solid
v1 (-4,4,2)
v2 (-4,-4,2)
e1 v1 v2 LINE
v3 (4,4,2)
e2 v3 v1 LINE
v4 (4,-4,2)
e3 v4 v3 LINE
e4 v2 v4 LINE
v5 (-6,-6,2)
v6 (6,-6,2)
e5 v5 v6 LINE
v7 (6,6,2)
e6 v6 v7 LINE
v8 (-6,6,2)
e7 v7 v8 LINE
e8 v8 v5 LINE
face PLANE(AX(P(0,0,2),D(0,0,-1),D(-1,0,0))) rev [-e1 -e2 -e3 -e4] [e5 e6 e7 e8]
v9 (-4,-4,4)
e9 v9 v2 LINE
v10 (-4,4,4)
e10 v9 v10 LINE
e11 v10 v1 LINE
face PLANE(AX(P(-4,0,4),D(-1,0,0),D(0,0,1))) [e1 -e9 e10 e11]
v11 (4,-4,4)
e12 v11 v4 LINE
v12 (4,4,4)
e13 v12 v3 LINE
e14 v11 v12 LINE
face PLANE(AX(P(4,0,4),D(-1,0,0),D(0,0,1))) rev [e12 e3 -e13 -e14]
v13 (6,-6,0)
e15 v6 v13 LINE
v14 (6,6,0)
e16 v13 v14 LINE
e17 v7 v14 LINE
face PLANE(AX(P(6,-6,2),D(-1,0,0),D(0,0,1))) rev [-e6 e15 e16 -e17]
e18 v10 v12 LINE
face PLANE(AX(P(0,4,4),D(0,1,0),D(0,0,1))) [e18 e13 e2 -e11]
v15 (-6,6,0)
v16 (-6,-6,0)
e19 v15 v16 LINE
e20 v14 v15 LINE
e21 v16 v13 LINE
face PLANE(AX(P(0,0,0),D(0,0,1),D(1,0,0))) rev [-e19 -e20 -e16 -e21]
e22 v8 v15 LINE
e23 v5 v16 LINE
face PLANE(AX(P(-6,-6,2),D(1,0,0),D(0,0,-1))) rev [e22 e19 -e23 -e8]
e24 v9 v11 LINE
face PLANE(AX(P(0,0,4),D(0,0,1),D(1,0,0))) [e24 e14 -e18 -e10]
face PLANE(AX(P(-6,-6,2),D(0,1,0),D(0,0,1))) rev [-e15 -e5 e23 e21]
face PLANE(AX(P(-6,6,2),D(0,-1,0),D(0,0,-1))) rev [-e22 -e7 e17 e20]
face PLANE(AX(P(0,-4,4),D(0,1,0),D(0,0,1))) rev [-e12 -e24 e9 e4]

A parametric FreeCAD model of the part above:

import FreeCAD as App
import Part
import Sketcher


def add_polygon(sketch, points):
    """Adds a closed chain of lines whose ends are joined by coincident constraints."""
    first, n = sketch.GeometryCount, len(points)
    for a, b in zip(points, points[1:] + points[:1]):
        sketch.addGeometry(Part.LineSegment(App.Vector(*a, 0), App.Vector(*b, 0)), False)
    for i in range(n):
        sketch.addConstraint(Sketcher.Constraint("Coincident", first + i, 2, first + (i + 1) % n, 1))

doc = App.newDocument("Part")
body = doc.addObject("PartDesign::Body", "Body")

sketch1 = body.newObject("Sketcher::SketchObject", "Sketch")
sketch1.AttachmentSupport = (doc.getObject("XY_Plane"), [""])
sketch1.MapMode = "FlatFace"
add_polygon(sketch1, [(-4, 4), (-4, -4), (4, -4), (4, 4)])
sketch1.addConstraint([
    Sketcher.Constraint("Vertical", 0),
    Sketcher.Constraint("Horizontal", 1),
    Sketcher.Constraint("Vertical", 2),
    Sketcher.Constraint("Horizontal", 3),
    Sketcher.Constraint("Symmetric", 0, 2, 2, 2, -1, 1),
    Sketcher.Constraint("Equal", 3, 0),
    Sketcher.Constraint("DistanceX", 1, 1, 1, 2, 8.0),
])
pad1 = body.newObject("PartDesign::Pad", "Pad")
pad1.Profile = sketch1
pad1.Length = 4

sketch2 = body.newObject("Sketcher::SketchObject", "Sketch001")
sketch2.AttachmentSupport = (doc.getObject("XY_Plane"), [""])
sketch2.MapMode = "FlatFace"
add_polygon(sketch2, [(-6, 6), (-6, -6), (6, -6), (6, 6)])
add_polygon(sketch2, [(4, -4), (-4, -4), (-4, 4), (4, 4)])
sketch2.addConstraint([
    Sketcher.Constraint("Vertical", 0),
    Sketcher.Constraint("Horizontal", 1),
    Sketcher.Constraint("Vertical", 2),
    Sketcher.Constraint("Horizontal", 3),
    Sketcher.Constraint("Horizontal", 4),
    Sketcher.Constraint("Vertical", 5),
    Sketcher.Constraint("Horizontal", 6),
    Sketcher.Constraint("Vertical", 7),
    Sketcher.Constraint("Symmetric", 0, 2, 2, 2, -1, 1),
    Sketcher.Constraint("Symmetric", 4, 2, 6, 2, -1, 1),
    Sketcher.Constraint("Equal", 3, 0),
    Sketcher.Constraint("Equal", 6, 5),
    Sketcher.Constraint("DistanceX", 1, 1, 1, 2, 12.0),
    Sketcher.Constraint("DistanceX", 4, 2, 4, 1, 8.0),
])
pad2 = body.newObject("PartDesign::Pad", "Pad001")
pad2.Profile = sketch2
pad2.Length = 2

doc.recompute()
